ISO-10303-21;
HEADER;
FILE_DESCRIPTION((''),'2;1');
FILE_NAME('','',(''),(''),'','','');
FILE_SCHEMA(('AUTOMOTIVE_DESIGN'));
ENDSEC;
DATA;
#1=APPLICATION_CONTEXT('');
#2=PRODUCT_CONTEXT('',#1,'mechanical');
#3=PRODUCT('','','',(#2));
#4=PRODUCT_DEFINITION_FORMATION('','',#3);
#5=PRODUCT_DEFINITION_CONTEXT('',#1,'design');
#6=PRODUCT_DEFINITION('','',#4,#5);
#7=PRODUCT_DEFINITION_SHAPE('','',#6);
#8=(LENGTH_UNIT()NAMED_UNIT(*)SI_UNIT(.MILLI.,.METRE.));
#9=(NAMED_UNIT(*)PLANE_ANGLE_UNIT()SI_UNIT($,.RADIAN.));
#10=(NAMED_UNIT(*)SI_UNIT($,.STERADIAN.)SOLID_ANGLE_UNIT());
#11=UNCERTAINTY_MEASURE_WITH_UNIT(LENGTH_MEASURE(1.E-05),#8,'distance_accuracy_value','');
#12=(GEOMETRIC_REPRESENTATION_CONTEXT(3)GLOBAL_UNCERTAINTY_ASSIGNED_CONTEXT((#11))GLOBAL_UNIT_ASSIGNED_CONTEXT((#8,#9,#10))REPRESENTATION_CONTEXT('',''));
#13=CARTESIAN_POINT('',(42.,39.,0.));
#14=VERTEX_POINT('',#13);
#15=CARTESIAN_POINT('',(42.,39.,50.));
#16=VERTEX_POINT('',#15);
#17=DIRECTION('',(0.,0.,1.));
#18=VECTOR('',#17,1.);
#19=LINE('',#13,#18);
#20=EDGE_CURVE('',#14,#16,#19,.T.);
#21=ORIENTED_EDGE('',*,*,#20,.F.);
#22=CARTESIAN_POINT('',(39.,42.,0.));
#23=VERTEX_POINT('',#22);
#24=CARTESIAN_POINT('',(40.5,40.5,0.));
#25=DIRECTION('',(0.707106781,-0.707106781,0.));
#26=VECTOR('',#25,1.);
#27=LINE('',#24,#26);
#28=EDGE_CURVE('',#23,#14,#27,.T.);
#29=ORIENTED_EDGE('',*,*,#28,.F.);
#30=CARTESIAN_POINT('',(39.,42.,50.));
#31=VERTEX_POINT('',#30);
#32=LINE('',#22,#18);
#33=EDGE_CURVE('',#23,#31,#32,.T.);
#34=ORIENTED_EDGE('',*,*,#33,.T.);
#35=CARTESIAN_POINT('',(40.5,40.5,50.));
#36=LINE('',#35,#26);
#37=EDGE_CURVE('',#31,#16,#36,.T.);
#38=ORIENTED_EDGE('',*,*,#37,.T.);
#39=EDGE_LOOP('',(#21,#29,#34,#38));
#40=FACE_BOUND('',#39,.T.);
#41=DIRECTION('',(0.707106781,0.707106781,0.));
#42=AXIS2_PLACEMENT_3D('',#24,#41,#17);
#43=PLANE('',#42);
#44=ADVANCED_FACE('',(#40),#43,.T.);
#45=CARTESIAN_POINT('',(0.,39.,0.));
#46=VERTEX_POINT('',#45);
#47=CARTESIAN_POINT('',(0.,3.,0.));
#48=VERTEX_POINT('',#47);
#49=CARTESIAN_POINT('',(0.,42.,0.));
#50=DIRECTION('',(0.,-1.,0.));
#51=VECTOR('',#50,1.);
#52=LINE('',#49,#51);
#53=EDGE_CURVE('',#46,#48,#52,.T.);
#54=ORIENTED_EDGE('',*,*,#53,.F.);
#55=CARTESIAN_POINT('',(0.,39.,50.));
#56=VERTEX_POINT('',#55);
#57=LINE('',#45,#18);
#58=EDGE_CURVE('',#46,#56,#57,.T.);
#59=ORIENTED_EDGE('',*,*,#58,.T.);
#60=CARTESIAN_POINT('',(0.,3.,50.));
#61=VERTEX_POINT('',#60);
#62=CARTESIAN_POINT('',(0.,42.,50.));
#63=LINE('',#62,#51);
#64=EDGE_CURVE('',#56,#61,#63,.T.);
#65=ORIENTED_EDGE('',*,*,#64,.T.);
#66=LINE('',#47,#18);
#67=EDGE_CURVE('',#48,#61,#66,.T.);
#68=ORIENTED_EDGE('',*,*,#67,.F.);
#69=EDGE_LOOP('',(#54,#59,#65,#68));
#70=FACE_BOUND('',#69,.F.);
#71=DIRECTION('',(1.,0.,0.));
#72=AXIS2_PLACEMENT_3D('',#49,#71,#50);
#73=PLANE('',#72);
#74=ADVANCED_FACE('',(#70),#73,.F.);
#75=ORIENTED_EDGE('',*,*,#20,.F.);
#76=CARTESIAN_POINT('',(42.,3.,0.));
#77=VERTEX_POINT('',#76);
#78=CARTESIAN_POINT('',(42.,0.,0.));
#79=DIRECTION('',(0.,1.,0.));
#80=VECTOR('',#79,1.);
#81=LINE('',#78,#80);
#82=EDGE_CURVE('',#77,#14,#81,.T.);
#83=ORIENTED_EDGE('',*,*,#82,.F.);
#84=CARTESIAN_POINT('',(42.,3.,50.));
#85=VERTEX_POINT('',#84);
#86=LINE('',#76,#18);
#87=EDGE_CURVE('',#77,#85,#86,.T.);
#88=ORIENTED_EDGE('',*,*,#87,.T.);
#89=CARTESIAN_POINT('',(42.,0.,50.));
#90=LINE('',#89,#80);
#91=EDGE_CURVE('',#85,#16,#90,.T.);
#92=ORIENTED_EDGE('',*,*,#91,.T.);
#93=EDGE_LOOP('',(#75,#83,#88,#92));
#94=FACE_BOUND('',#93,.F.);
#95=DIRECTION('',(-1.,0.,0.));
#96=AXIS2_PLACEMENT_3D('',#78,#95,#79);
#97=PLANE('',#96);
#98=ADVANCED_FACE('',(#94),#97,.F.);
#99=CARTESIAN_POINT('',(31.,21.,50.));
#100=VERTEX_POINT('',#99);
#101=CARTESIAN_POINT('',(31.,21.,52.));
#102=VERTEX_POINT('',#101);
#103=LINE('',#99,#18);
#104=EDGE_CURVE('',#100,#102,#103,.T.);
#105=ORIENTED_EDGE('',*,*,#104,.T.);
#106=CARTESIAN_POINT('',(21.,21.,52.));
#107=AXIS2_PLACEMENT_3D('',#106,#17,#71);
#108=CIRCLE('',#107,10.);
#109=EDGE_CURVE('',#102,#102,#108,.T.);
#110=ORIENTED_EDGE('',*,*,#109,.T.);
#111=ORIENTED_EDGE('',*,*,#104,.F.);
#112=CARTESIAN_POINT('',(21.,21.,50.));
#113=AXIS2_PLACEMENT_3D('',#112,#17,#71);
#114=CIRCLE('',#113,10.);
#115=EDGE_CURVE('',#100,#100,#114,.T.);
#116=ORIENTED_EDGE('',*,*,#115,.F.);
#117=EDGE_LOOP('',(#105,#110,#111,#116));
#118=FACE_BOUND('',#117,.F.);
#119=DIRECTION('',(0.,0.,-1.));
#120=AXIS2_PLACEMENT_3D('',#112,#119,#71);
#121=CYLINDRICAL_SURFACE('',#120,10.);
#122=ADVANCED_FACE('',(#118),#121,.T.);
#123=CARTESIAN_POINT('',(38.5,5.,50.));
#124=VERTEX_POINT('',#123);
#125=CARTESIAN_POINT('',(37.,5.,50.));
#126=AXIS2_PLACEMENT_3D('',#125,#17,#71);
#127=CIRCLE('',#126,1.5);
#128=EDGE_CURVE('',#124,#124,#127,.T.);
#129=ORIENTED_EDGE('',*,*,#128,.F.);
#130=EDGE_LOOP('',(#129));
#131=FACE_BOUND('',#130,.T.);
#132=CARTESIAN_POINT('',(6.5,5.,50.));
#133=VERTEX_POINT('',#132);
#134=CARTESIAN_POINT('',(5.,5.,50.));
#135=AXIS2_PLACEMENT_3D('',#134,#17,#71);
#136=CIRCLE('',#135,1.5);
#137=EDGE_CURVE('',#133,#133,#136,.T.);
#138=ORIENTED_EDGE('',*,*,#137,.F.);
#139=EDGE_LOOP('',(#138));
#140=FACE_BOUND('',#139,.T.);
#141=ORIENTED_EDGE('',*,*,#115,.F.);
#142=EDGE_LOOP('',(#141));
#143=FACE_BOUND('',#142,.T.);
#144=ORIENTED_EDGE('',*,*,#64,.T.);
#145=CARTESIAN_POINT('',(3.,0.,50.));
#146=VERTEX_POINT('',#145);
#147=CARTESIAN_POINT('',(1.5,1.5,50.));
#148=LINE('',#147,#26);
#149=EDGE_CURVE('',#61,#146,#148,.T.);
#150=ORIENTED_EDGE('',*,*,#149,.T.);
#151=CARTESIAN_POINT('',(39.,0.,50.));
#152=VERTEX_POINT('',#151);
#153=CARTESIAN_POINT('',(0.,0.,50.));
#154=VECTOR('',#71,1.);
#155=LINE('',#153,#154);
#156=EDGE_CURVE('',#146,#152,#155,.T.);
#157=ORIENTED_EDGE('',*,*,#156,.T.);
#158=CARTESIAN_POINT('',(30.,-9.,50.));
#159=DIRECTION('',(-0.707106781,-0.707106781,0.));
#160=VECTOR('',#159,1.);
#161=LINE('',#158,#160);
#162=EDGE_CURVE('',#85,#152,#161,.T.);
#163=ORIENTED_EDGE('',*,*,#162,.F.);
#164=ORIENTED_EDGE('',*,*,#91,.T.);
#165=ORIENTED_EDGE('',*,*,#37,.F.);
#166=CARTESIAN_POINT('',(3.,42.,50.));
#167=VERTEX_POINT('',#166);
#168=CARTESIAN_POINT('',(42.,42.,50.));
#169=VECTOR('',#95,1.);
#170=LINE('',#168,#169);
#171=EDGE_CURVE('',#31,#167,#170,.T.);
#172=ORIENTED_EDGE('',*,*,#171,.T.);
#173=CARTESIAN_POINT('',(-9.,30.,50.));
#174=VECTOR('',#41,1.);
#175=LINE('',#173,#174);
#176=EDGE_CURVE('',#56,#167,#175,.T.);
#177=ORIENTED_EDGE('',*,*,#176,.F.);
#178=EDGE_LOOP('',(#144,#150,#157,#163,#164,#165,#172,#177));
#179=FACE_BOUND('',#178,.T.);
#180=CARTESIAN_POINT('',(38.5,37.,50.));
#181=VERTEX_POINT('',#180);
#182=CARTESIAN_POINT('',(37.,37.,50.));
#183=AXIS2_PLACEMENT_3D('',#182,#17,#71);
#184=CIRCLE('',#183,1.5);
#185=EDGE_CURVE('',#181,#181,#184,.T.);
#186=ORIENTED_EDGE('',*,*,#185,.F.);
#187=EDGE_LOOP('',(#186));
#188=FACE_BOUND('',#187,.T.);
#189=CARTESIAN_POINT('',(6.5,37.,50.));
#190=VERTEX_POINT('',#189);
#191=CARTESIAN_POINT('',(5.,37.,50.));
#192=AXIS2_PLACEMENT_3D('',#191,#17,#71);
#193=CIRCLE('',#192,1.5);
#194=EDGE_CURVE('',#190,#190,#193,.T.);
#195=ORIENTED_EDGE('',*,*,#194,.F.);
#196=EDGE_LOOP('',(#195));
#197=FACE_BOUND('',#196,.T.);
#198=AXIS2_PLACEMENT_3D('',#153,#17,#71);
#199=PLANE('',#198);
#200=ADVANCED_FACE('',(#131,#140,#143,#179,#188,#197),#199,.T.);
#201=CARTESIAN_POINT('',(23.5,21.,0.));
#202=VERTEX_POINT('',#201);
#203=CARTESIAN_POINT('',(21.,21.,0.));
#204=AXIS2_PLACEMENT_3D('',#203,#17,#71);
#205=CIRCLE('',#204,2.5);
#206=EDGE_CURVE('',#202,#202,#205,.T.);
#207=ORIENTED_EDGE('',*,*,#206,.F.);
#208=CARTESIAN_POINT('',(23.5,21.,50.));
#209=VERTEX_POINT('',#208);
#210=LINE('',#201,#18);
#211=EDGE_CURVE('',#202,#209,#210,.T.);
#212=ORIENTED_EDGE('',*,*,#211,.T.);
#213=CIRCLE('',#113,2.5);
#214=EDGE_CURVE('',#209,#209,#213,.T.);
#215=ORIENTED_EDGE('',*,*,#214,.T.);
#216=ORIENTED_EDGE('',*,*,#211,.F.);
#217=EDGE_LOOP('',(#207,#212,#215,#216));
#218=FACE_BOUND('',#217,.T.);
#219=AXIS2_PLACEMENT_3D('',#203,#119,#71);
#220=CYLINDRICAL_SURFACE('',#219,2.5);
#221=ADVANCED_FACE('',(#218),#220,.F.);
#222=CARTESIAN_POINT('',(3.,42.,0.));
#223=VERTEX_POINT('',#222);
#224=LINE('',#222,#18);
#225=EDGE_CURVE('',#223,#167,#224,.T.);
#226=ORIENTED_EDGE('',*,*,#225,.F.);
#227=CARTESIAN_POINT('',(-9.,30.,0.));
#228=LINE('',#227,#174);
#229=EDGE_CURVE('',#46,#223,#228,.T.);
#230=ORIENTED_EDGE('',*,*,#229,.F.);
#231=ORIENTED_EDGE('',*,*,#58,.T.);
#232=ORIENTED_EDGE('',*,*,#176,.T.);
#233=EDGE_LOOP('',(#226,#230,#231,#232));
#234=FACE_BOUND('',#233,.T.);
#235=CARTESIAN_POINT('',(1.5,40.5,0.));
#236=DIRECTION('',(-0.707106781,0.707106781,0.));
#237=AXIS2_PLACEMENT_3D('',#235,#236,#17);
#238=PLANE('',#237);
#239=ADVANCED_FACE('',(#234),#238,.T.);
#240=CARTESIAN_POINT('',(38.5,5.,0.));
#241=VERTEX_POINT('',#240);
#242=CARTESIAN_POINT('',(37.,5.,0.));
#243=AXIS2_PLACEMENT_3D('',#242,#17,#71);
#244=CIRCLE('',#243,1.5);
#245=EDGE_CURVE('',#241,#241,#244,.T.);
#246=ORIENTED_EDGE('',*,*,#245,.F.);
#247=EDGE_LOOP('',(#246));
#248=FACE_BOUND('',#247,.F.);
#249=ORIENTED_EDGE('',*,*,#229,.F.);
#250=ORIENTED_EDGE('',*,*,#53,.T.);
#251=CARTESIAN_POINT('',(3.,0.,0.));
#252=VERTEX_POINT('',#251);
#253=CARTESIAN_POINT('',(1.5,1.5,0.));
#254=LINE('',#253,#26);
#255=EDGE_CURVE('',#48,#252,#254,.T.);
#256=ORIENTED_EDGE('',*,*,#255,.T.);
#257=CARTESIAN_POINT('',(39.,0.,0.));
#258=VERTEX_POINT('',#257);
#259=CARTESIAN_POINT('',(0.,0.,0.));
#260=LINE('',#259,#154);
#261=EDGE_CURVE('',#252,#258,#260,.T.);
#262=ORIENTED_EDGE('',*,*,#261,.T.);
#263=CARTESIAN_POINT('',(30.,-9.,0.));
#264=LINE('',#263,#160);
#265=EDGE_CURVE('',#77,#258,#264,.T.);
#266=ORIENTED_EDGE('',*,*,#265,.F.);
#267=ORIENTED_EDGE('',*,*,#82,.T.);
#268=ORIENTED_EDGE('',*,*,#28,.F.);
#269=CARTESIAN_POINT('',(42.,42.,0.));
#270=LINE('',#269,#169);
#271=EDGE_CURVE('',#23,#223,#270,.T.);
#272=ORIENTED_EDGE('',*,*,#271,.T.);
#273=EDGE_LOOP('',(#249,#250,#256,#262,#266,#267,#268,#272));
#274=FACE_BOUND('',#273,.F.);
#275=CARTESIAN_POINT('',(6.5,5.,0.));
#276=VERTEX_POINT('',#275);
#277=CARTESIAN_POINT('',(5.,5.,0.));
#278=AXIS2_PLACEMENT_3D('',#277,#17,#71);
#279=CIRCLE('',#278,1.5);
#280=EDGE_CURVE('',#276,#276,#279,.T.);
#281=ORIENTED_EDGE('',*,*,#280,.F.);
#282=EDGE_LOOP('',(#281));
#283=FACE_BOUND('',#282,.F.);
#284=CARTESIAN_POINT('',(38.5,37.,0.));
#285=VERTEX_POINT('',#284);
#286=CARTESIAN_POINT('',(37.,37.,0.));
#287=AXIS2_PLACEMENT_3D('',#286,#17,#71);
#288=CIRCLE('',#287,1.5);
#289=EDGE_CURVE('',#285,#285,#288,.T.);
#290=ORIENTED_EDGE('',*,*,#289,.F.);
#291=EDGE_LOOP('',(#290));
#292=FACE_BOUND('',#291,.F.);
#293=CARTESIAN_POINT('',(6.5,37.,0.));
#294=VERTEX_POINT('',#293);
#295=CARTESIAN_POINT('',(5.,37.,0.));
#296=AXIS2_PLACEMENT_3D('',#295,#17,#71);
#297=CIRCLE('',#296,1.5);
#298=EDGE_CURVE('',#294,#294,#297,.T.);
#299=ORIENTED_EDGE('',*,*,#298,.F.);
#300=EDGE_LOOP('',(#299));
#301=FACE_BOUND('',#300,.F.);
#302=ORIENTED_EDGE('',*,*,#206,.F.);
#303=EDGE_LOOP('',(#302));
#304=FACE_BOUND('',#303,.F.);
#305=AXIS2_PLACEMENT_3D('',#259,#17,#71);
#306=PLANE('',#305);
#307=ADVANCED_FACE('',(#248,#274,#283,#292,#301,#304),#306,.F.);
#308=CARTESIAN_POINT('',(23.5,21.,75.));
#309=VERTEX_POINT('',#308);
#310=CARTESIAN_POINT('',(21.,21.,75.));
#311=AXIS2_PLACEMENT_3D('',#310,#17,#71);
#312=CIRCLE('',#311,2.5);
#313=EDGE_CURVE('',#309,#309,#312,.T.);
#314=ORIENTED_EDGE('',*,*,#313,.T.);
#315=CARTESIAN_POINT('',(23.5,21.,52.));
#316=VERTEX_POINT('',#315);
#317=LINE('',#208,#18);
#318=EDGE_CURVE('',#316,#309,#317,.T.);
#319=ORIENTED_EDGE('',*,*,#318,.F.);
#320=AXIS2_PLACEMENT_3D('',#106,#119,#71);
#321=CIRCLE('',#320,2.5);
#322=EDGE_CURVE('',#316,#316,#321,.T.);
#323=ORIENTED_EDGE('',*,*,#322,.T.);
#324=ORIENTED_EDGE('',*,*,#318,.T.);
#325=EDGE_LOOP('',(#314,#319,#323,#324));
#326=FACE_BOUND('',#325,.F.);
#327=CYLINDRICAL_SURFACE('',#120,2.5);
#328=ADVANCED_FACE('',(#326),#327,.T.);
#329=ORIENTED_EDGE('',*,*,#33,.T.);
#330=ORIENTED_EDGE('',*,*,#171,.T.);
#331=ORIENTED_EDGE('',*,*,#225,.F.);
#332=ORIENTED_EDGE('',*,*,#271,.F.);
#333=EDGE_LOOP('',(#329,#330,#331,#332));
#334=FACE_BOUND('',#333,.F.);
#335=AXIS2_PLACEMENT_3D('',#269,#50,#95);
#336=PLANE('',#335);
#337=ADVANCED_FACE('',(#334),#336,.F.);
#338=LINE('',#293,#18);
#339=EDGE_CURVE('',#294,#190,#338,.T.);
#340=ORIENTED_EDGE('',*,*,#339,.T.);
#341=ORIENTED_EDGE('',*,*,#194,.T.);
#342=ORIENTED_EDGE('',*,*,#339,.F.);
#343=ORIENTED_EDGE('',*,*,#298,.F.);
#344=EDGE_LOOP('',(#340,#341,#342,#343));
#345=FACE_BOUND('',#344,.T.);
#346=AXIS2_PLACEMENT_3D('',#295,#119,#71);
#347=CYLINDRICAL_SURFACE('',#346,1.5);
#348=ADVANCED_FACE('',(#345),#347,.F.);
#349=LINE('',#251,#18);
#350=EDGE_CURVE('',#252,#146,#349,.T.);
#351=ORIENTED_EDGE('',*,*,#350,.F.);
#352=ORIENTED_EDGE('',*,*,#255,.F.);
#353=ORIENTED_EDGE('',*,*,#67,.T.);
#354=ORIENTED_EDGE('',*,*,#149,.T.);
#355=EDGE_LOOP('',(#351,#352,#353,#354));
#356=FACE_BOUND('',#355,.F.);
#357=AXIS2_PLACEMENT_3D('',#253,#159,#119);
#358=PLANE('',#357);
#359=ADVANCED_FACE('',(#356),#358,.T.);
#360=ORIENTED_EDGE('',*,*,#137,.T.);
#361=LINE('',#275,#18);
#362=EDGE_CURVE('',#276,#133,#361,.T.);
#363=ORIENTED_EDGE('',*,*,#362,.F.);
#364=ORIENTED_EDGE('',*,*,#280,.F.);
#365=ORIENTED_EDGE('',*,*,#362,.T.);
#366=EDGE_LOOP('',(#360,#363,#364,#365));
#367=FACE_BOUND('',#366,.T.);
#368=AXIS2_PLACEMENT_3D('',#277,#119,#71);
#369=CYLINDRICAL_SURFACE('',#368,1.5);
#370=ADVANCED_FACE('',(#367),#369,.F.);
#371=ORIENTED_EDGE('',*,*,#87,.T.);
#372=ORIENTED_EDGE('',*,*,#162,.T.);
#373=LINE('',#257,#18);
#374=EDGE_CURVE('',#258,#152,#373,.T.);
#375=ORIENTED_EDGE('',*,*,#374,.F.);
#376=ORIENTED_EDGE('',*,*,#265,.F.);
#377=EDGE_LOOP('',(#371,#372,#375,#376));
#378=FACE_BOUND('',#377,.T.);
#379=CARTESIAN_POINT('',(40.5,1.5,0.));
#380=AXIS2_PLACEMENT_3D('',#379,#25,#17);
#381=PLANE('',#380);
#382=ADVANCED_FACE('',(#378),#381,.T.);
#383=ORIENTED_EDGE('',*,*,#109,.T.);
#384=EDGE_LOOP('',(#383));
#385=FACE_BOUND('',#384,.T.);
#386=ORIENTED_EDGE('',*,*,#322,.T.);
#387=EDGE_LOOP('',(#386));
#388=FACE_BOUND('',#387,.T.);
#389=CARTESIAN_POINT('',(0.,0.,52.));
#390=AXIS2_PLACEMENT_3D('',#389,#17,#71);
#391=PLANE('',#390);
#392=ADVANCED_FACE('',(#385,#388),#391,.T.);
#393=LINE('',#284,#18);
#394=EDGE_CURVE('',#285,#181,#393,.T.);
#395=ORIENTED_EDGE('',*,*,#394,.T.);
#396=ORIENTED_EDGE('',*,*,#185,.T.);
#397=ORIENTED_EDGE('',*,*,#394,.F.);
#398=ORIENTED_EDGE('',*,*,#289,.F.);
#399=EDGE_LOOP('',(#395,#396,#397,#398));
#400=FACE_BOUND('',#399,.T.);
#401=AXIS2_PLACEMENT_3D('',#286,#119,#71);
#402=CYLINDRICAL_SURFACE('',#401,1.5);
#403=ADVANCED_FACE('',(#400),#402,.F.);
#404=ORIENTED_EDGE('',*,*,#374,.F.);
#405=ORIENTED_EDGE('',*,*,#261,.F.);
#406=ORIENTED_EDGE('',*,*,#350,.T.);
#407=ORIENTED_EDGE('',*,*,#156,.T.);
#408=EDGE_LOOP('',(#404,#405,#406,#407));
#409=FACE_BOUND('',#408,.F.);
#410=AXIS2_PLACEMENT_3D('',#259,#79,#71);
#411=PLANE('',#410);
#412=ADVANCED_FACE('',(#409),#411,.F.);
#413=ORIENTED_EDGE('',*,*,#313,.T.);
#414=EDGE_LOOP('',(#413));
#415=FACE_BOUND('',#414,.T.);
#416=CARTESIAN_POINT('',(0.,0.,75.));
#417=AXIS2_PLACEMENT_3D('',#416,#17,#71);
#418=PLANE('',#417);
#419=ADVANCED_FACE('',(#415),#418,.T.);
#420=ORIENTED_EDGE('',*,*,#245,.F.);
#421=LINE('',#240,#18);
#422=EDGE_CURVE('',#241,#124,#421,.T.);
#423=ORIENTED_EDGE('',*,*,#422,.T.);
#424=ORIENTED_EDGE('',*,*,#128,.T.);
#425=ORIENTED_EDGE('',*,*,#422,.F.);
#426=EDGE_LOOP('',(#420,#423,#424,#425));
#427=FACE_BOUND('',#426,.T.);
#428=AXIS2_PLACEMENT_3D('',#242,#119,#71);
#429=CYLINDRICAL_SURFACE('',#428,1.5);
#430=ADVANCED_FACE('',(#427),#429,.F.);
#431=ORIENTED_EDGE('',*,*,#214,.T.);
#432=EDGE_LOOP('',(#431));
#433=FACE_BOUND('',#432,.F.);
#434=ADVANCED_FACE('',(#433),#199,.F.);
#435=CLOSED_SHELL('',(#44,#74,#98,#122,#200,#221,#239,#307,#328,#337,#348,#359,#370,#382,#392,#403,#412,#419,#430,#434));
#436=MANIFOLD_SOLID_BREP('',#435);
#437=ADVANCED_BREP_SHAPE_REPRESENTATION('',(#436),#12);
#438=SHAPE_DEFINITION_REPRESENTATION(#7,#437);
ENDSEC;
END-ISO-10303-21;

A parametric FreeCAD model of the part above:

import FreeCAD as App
import Part
import Sketcher
from FreeCAD import Vector


def edges_at(feature, points):
    """Names of the edges that pass closest to the given points."""
    edges = feature.Shape.Edges
    near = lambda p: min(range(len(edges)), key=lambda i: edges[i].distToShape(Part.Vertex(*p))[0])
    return sorted({f"Edge{near(p) + 1}" for p in points})


def add_polygon(sketch, points):
    """Adds a closed chain of lines whose ends are joined by coincident constraints."""
    first, n = sketch.GeometryCount, len(points)
    for a, b in zip(points, points[1:] + points[:1]):
        sketch.addGeometry(Part.LineSegment(App.Vector(*a, 0), App.Vector(*b, 0)), False)
    for i in range(n):
        sketch.addConstraint(Sketcher.Constraint("Coincident", first + i, 2, first + (i + 1) % n, 1))

doc = App.newDocument("Part")
params = doc.addObject("Spreadsheet::Sheet", "Params")
for row, (alias, value) in enumerate([
    ("sketch1_diameter", "3 mm"),
    ("sketch1_diameter2", "5 mm"),
    ("sketch1_width", "42 mm"),
    ("pad1_length", "50 mm"),
    ("chamfer_size", "3 mm"),
    ("sketch2_diameter", "5 mm"),
    ("pad2_length", "25 mm"),
    ("sketch3_diameter", "20 mm"),
    ("pad3_length", "2 mm"),
], start=1):
    params.set(f"A{row}", alias)
    params.set(f"B{row}", "=" + value)
    params.setAlias(f"B{row}", alias)

body = doc.addObject("PartDesign::Body", "Body")
body.AllowCompound = True

# Sketch on XY plane
sketch1 = body.newObject("Sketcher::SketchObject", "Sketch")
sketch1.AttachmentSupport = (doc.getObject("XY_Plane"), [""])
sketch1.MapMode = "FlatFace"
add_polygon(sketch1, [(0, 42), (0, 0), (42, 0), (42, 42)])  # lines 0-3
sketch1.addGeometry(Part.Circle(Vector(5, 5, 0), Vector(0, 0, 1), 1.5), False)  # 4
sketch1.addGeometry(Part.Circle(Vector(37, 5, 0), Vector(0, 0, 1), 1.5), False)  # 5
sketch1.addGeometry(Part.Circle(Vector(5, 37, 0), Vector(0, 0, 1), 1.5), False)  # 6
sketch1.addGeometry(Part.Circle(Vector(21, 21, 0), Vector(0, 0, 1), 2.5), False)  # 7
sketch1.addGeometry(Part.Circle(Vector(37, 37, 0), Vector(0, 0, 1), 1.5), False)  # 8
sketch1.addConstraint([
    Sketcher.Constraint("Vertical", 0),
    Sketcher.Constraint("Horizontal", 1),
    Sketcher.Constraint("Vertical", 2),
    Sketcher.Constraint("Horizontal", 3),
    Sketcher.Constraint("Coincident", 0, 2, -1, 1),
    Sketcher.Constraint("Equal", 4, 5),
    Sketcher.Constraint("Equal", 5, 6),
    Sketcher.Constraint("Equal", 6, 8),
    Sketcher.Constraint("Horizontal", 4, 3, 5, 3),
    Sketcher.Constraint("Horizontal", 6, 3, 8, 3),
    Sketcher.Constraint("Vertical", 4, 3, 6, 3),
    Sketcher.Constraint("Vertical", 5, 3, 8, 3),
    Sketcher.Constraint("Equal", 3, 0),
    Sketcher.Constraint("Diameter", 4, 3.0),
    Sketcher.Constraint("Diameter", 7, 5.0),
    Sketcher.Constraint("DistanceX", 1, 1, 1, 2, 42.0),
    Sketcher.Constraint("DistanceX", -1, 1, 4, 3, 5.0),
    Sketcher.Constraint("DistanceY", -1, 1, 4, 3, 5.0),
    Sketcher.Constraint("DistanceX", 4, 3, 5, 3, 32.0),
    Sketcher.Constraint("DistanceY", 4, 3, 6, 3, 32.0),
    Sketcher.Constraint("DistanceX", -1, 1, 7, 3, 21.0),
    Sketcher.Constraint("DistanceY", -1, 1, 7, 3, 21.0),
])
sketch1.setExpression("Constraints[17]", "Params.sketch1_diameter")
sketch1.setExpression("Constraints[18]", "Params.sketch1_diameter2")
sketch1.setExpression("Constraints[19]", "Params.sketch1_width")
pad1 = body.newObject("PartDesign::Pad", "Pad")
pad1.Profile = sketch1
pad1.setExpression("Length", "Params.pad1_length")
doc.recompute()

chamfer = body.newObject("PartDesign::Chamfer", "Chamfer")
chamfer.Base = (pad1, edges_at(pad1, [
    (42, 42, 25),
    (42, 0, 25),
    (0, 0, 25),
    (0, 42, 25),
]))
chamfer.setExpression("Size", "Params.chamfer_size")

# Sketch on XY plane
sketch2 = body.newObject("Sketcher::SketchObject", "Sketch001")
sketch2.AttachmentSupport = (doc.getObject("XY_Plane"), [""])
sketch2.MapMode = "FlatFace"
sketch2.AttachmentOffset = App.Placement(Vector(0, 0, 50), App.Rotation())
sketch2.addGeometry(Part.Circle(Vector(21, 21, 0), Vector(0, 0, 1), 2.5), False)
sketch2.addConstraint([
    Sketcher.Constraint("Diameter", 0, 5.0),
    Sketcher.Constraint("DistanceX", -1, 1, 0, 3, 21.0),
    Sketcher.Constraint("DistanceY", -1, 1, 0, 3, 21.0),
])
sketch2.setExpression("Constraints[0]", "Params.sketch2_diameter")
pad2 = body.newObject("PartDesign::Pad", "Pad001")
pad2.Profile = sketch2
pad2.setExpression("Length", "Params.pad2_length")

# Sketch on XY plane
sketch3 = body.newObject("Sketcher::SketchObject", "Sketch002")
sketch3.AttachmentSupport = (doc.getObject("XY_Plane"), [""])
sketch3.MapMode = "FlatFace"
sketch3.AttachmentOffset = App.Placement(Vector(0, 0, 50), App.Rotation())
sketch3.addGeometry(Part.Circle(Vector(21, 21, 0), Vector(0, 0, 1), 10), False)
sketch3.addConstraint([
    Sketcher.Constraint("Diameter", 0, 20.0),
    Sketcher.Constraint("DistanceX", -1, 1, 0, 3, 21.0),
    Sketcher.Constraint("DistanceY", -1, 1, 0, 3, 21.0),
])
sketch3.setExpression("Constraints[0]", "Params.sketch3_diameter")
pad3 = body.newObject("PartDesign::Pad", "Pad002")
pad3.Profile = sketch3
pad3.setExpression("Length", "Params.pad3_length")

doc.recompute()
